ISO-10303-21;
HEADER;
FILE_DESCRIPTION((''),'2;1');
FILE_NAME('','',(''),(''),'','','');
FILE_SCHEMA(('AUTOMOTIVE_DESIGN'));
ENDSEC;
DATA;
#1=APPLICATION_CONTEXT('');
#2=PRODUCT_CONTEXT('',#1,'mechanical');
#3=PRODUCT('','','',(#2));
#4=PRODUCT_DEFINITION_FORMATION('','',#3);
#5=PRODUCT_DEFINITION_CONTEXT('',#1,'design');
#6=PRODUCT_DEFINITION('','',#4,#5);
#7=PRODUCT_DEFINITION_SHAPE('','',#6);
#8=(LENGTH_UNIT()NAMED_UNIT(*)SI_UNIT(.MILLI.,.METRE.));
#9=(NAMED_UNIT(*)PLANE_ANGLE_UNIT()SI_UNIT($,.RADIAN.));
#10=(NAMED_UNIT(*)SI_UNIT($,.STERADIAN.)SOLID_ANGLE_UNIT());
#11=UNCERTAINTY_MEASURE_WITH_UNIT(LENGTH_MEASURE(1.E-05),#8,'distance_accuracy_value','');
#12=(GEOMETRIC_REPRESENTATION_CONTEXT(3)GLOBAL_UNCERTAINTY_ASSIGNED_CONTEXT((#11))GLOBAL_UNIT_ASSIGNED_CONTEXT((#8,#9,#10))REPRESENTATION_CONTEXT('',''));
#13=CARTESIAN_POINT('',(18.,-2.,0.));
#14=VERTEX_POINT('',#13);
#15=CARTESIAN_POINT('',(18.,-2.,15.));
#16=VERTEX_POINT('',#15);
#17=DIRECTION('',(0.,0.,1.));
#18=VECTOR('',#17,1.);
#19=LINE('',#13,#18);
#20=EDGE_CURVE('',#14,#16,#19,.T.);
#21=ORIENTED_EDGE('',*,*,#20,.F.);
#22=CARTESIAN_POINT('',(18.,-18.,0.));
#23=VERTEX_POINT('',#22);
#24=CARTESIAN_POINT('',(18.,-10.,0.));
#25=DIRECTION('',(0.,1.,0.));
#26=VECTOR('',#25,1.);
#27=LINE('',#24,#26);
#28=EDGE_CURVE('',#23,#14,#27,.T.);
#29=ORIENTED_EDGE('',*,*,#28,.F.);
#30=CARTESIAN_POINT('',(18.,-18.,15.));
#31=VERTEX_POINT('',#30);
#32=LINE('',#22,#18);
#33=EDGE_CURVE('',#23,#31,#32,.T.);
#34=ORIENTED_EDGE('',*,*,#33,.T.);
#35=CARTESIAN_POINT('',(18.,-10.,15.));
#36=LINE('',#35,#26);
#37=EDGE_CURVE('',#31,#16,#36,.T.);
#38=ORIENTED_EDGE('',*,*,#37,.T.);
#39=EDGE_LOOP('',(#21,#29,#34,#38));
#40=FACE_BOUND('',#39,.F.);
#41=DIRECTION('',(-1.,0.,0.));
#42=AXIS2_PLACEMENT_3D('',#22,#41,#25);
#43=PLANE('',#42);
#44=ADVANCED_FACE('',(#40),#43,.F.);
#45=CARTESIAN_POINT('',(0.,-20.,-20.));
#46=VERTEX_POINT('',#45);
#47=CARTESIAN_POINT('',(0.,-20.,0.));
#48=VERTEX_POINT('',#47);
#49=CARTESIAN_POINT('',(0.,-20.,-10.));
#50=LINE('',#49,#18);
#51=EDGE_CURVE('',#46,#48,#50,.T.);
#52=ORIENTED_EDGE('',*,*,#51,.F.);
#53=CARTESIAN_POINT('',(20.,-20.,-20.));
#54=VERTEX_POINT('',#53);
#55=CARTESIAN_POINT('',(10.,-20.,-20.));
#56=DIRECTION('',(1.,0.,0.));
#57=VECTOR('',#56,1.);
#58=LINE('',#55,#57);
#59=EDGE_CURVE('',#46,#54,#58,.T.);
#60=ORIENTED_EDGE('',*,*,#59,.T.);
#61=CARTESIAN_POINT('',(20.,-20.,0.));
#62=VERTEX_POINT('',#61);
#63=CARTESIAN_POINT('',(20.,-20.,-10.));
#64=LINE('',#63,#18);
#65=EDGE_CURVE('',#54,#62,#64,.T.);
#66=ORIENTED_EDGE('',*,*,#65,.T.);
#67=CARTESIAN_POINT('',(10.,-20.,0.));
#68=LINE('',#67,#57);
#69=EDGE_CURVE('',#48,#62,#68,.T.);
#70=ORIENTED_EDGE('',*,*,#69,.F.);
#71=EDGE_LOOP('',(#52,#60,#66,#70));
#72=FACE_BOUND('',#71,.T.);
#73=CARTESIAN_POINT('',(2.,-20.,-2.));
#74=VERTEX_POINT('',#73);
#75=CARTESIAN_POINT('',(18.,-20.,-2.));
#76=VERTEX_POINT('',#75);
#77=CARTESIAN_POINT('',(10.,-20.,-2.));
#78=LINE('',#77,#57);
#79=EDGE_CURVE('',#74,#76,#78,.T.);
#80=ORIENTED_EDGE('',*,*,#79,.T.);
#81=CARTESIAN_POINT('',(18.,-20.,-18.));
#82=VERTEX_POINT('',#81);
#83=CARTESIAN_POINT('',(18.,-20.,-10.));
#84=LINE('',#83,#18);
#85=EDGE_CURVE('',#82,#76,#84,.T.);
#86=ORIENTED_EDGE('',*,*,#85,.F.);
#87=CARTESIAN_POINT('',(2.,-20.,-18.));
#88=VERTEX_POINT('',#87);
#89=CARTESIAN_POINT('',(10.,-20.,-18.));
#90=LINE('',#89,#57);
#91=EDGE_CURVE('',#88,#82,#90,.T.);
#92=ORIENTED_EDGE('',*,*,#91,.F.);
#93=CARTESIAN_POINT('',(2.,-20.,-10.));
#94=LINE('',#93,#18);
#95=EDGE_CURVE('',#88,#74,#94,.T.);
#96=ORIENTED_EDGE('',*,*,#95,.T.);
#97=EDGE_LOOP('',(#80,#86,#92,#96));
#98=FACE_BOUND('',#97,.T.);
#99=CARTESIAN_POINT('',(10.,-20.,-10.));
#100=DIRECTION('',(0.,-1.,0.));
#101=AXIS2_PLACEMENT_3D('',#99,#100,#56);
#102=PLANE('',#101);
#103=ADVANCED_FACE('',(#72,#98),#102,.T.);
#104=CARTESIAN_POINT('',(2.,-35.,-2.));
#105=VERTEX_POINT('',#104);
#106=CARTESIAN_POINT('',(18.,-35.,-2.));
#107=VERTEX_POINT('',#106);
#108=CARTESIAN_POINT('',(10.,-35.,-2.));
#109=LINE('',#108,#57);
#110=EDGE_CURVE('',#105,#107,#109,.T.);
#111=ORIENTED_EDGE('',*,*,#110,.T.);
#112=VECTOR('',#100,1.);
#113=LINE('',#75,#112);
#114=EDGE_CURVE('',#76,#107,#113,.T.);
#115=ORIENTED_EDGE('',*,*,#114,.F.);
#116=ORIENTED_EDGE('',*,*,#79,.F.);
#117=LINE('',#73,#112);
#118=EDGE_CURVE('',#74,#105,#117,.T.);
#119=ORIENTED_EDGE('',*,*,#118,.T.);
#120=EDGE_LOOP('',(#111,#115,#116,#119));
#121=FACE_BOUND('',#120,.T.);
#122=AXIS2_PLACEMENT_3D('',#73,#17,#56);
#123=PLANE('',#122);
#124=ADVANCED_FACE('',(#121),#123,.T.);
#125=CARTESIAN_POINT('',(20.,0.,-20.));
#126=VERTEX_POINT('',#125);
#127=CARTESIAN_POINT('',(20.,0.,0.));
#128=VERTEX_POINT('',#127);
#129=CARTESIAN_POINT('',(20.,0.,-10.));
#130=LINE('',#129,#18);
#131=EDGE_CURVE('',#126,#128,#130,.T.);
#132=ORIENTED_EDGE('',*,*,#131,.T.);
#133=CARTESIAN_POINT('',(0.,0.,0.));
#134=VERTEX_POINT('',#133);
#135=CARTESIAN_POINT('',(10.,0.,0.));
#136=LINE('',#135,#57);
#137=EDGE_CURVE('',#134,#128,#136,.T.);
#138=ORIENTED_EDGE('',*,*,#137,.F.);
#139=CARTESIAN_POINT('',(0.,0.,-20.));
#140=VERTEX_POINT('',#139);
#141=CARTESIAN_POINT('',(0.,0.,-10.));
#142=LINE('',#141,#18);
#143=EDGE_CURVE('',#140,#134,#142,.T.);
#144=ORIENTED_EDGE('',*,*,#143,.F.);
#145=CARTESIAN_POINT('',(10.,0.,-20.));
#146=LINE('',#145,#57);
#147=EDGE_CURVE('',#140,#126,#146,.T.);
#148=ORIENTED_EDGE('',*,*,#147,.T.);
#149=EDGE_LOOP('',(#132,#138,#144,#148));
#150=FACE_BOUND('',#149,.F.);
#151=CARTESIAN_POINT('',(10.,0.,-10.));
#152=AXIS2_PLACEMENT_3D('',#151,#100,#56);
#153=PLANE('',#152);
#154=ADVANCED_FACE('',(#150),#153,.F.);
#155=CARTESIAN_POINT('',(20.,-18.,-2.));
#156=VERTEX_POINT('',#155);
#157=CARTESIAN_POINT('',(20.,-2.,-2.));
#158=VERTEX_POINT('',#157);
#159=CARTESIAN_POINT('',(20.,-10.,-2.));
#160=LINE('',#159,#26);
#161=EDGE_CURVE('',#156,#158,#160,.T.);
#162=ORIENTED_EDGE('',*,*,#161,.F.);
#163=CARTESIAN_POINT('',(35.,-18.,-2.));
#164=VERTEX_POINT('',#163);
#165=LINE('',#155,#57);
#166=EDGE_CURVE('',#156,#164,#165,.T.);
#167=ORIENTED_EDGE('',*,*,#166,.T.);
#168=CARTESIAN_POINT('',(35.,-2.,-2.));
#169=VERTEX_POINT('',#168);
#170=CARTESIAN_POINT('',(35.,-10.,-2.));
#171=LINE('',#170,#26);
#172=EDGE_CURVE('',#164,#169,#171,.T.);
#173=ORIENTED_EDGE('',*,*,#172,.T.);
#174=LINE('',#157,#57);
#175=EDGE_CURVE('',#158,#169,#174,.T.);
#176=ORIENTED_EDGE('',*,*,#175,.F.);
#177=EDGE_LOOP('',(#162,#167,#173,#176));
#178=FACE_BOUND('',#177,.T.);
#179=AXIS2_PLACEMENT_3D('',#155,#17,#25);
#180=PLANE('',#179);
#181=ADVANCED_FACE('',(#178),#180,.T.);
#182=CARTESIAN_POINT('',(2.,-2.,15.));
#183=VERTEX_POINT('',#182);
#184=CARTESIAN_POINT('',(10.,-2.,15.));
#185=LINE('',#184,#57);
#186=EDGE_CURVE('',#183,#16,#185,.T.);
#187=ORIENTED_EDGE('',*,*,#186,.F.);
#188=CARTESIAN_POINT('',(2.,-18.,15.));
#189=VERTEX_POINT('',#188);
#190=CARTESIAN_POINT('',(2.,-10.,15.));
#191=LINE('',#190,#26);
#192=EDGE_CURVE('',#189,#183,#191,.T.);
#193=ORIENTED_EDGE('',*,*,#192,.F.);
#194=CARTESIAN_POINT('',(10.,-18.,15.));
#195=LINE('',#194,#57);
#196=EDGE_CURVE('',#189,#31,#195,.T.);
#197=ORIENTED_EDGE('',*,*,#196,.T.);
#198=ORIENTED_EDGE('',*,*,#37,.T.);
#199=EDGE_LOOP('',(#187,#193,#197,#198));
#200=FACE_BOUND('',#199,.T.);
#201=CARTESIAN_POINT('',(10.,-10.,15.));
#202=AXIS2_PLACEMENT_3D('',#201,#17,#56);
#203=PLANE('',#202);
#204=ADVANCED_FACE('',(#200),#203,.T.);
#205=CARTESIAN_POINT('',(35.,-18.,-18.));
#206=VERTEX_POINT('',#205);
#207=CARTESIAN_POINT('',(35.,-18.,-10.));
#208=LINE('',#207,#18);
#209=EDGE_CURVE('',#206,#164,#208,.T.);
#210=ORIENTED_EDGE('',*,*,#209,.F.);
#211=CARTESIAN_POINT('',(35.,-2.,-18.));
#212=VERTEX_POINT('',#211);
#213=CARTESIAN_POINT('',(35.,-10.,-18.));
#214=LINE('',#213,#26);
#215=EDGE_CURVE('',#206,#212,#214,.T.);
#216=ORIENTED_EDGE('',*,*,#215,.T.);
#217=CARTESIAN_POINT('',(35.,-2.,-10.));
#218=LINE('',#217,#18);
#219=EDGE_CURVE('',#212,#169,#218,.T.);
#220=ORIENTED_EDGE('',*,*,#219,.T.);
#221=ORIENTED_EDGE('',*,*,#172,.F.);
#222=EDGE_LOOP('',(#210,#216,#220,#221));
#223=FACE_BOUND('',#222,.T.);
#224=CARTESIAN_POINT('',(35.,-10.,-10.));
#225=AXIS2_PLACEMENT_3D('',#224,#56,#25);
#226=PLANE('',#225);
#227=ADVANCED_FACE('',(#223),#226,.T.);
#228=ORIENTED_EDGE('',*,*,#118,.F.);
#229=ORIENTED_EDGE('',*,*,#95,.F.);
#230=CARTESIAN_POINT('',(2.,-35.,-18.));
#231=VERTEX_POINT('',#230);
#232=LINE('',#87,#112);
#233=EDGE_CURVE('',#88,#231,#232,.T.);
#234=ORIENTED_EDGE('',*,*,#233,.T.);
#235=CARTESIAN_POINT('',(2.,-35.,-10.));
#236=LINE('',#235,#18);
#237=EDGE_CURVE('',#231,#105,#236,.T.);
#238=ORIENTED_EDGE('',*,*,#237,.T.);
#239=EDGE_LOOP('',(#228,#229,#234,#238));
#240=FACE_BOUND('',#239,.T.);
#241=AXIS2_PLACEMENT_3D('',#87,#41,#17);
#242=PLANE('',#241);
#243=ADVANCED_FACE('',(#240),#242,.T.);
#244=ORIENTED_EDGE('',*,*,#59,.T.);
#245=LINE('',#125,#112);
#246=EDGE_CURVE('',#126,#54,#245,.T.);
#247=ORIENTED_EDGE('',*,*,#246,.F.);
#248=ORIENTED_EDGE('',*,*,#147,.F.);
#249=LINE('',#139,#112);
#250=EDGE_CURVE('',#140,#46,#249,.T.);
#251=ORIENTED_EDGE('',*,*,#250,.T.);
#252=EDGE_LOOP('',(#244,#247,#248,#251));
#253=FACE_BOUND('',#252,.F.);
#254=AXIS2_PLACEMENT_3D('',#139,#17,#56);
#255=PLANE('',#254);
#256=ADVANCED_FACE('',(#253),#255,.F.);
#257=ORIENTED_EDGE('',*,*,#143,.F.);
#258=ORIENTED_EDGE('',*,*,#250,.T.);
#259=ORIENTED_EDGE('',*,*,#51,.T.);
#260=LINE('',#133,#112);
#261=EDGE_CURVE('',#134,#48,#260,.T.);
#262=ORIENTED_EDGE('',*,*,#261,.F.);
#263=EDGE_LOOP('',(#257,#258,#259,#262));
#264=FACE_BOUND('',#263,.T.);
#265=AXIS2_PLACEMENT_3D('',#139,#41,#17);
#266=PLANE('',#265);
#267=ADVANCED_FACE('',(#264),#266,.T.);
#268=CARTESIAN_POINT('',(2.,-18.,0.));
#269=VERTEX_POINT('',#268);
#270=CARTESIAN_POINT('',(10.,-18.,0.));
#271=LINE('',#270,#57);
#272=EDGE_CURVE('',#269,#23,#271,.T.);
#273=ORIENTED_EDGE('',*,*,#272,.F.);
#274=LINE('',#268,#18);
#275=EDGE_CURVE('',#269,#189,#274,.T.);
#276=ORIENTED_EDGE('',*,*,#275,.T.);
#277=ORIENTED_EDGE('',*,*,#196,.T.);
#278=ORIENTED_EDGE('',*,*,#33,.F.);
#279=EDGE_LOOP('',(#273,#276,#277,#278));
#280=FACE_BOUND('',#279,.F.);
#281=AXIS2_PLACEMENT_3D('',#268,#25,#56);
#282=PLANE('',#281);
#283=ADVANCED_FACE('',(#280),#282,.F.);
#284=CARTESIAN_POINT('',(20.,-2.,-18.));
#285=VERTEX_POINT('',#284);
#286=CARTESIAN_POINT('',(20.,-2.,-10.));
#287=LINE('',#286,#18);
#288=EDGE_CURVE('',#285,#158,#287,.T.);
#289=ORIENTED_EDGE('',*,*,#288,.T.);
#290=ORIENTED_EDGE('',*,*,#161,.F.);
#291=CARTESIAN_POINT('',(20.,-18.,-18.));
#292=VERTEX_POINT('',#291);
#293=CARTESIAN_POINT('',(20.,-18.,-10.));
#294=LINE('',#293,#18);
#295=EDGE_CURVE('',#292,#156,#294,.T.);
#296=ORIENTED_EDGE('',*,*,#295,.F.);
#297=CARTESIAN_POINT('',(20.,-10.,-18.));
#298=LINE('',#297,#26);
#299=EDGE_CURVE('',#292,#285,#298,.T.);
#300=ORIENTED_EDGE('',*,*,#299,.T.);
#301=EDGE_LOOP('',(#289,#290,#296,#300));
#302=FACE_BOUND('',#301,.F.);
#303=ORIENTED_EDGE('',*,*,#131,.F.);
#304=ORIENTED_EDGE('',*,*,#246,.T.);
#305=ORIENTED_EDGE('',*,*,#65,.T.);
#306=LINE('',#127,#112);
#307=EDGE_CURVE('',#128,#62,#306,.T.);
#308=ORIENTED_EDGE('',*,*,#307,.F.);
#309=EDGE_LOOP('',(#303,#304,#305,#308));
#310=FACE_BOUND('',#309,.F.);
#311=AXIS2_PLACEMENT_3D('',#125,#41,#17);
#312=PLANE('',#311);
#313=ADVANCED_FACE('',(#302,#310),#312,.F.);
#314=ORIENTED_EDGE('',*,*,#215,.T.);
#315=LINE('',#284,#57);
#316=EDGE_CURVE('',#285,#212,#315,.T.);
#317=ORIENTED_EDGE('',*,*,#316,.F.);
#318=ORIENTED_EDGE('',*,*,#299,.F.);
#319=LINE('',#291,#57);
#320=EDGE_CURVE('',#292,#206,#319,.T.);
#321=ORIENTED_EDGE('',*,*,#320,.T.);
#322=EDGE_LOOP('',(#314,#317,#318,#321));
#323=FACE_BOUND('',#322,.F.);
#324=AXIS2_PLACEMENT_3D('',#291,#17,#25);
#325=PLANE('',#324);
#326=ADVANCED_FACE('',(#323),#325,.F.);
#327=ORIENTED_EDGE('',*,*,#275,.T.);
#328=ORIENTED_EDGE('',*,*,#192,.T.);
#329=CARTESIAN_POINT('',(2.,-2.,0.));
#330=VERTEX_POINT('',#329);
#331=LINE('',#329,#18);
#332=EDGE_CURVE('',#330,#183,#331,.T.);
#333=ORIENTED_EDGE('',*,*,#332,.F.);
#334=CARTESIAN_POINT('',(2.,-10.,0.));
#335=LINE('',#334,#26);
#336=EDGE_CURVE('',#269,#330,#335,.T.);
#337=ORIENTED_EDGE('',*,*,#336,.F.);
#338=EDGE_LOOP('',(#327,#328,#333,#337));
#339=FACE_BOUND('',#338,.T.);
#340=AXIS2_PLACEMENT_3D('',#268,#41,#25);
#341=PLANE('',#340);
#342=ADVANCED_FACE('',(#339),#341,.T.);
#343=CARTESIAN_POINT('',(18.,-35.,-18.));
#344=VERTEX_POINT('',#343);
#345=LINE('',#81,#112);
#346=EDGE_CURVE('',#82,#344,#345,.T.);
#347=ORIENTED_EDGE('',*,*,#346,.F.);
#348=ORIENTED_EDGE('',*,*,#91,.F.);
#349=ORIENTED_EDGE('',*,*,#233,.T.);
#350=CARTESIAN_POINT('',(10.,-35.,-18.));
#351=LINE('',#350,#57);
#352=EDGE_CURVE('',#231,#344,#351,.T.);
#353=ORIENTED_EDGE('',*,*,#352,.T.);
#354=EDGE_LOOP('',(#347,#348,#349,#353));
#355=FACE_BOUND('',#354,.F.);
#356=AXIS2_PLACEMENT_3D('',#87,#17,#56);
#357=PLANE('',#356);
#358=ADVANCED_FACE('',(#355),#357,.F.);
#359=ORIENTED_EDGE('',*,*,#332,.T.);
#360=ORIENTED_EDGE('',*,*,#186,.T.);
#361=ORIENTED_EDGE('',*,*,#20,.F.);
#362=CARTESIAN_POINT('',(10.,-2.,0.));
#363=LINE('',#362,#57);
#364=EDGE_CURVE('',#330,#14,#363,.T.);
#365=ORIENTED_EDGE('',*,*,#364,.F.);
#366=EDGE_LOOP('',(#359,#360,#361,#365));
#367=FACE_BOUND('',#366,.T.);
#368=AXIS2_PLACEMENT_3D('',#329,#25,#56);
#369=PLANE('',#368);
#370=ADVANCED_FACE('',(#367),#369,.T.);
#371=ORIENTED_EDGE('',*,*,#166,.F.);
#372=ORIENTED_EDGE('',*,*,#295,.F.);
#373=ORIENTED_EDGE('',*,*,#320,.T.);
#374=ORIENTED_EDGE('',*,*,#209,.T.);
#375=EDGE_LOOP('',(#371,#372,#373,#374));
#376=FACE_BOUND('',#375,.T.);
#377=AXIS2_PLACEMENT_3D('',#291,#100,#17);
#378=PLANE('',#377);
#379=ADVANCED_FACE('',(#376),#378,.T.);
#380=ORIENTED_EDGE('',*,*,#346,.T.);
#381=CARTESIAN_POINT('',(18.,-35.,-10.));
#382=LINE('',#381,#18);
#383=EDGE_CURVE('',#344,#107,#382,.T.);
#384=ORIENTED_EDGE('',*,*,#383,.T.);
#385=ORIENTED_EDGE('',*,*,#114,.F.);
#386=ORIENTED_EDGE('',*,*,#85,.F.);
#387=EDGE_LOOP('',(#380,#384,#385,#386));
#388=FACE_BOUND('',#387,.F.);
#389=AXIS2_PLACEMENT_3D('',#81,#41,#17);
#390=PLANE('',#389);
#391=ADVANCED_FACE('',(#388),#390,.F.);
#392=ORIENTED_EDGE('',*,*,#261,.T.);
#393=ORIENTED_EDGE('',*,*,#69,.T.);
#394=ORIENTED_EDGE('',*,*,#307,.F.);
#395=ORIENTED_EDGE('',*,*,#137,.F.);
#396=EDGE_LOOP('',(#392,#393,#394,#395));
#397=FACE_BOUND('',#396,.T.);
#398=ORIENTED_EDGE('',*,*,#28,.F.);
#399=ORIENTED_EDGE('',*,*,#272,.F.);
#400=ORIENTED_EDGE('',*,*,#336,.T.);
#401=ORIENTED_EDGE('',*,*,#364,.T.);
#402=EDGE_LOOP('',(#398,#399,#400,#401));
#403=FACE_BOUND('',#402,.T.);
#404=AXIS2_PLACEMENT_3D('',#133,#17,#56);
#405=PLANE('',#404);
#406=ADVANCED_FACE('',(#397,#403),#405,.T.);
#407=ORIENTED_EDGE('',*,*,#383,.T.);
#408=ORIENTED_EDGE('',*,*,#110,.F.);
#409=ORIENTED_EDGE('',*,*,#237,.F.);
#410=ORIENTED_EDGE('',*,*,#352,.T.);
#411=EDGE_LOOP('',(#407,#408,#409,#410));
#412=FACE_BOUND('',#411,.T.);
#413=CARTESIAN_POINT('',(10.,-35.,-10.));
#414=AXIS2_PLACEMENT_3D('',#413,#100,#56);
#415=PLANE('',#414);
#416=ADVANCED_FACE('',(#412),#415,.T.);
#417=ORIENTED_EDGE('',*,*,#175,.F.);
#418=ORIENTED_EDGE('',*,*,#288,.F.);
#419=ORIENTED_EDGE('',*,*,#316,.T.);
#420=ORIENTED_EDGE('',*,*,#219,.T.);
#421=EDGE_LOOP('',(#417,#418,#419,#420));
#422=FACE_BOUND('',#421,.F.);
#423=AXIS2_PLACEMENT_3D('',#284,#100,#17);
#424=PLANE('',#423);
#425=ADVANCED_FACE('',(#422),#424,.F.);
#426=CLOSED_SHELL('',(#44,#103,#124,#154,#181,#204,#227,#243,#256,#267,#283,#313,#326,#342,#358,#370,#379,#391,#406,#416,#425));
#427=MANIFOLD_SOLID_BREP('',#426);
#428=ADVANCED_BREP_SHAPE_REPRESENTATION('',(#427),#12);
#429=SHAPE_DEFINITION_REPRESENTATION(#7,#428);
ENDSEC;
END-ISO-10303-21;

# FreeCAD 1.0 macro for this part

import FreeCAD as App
import Part
import Sketcher

V = App.Vector


def add_polygon(sketch, points):
    """Adds a closed chain of lines whose ends are joined by coincident constraints."""
    first, n = sketch.GeometryCount, len(points)
    for a, b in zip(points, points[1:] + points[:1]):
        sketch.addGeometry(Part.LineSegment(App.Vector(*a, 0), App.Vector(*b, 0)), False)
    for i in range(n):
        sketch.addConstraint(Sketcher.Constraint("Coincident", first + i, 2, first + (i + 1) % n, 1))

doc = App.newDocument("Part")
body = doc.addObject("PartDesign::Body", "Body")

sketch1 = body.newObject("Sketcher::SketchObject", "Sketch")
sketch1.AttachmentSupport = (doc.getObject("XZ_Plane"), [""])
sketch1.MapMode = "FlatFace"
add_polygon(sketch1, [(0, 0), (0, -20), (20, -20), (20, 0)])
sketch1.addConstraint([
    Sketcher.Constraint("Vertical", 0),
    Sketcher.Constraint("Horizontal", 1),
    Sketcher.Constraint("Vertical", 2),
    Sketcher.Constraint("Horizontal", 3),
    Sketcher.Constraint("Coincident", 3, 2, -1, 1),
    Sketcher.Constraint("Equal", 3, 0),
    Sketcher.Constraint("DistanceX", 1, 1, 1, 2, 20.0),
])
pad1 = body.newObject("PartDesign::Pad", "Pad")
pad1.Profile = sketch1
pad1.Length = 20

sketch2 = body.newObject("Sketcher::SketchObject", "Sketch001")
sketch2.AttachmentSupport = (doc.getObject("XZ_Plane"), [""])
sketch2.MapMode = "FlatFace"
sketch2.AttachmentOffset = App.Placement(V(0, 0, 20), App.Rotation())
add_polygon(sketch2, [(2, -2), (2, -18), (18, -18), (18, -2)])
sketch2.addConstraint([
    Sketcher.Constraint("Vertical", 0),
    Sketcher.Constraint("Horizontal", 1),
    Sketcher.Constraint("Vertical", 2),
    Sketcher.Constraint("Horizontal", 3),
    Sketcher.Constraint("Equal", 3, 0),
    Sketcher.Constraint("DistanceX", 1, 1, 1, 2, 16.0),
    Sketcher.Constraint("DistanceX", -1, 1, 0, 2, 2.0),
    Sketcher.Constraint("DistanceY", 0, 2, -1, 1, 18.0),
])
pad2 = body.newObject("PartDesign::Pad", "Pad001")
pad2.Profile = sketch2
pad2.Length = 15

sketch3 = body.newObject("Sketcher::SketchObject", "Sketch002")
sketch3.AttachmentSupport = (doc.getObject("YZ_Plane"), [""])
sketch3.MapMode = "FlatFace"
sketch3.AttachmentOffset = App.Placement(V(0, 0, 20), App.Rotation())
add_polygon(sketch3, [(-18, -2), (-18, -18), (-2, -18), (-2, -2)])
sketch3.addConstraint([
    Sketcher.Constraint("Vertical", 0),
    Sketcher.Constraint("Horizontal", 1),
    Sketcher.Constraint("Vertical", 2),
    Sketcher.Constraint("Horizontal", 3),
    Sketcher.Constraint("Equal", 3, 0),
    Sketcher.Constraint("DistanceX", 1, 1, 1, 2, 16.0),
    Sketcher.Constraint("DistanceX", 0, 2, -1, 1, 18.0),
    Sketcher.Constraint("DistanceY", 0, 2, -1, 1, 18.0),
])
pad3 = body.newObject("PartDesign::Pad", "Pad002")
pad3.Profile = sketch3
pad3.Length = 15

sketch4 = body.newObject("Sketcher::SketchObject", "Sketch003")
sketch4.AttachmentSupport = (doc.getObject("XY_Plane"), [""])
sketch4.MapMode = "FlatFace"
add_polygon(sketch4, [(2, -2), (2, -18), (18, -18), (18, -2)])
sketch4.addConstraint([
    Sketcher.Constraint("Vertical", 0),
    Sketcher.Constraint("Horizontal", 1),
    Sketcher.Constraint("Vertical", 2),
    Sketcher.Constraint("Horizontal", 3),
    Sketcher.Constraint("Equal", 3, 0),
    Sketcher.Constraint("DistanceX", 1, 1, 1, 2, 16.0),
    Sketcher.Constraint("DistanceX", -1, 1, 0, 2, 2.0),
    Sketcher.Constraint("DistanceY", 0, 2, -1, 1, 18.0),
])
pad4 = body.newObject("PartDesign::Pad", "Pad003")
pad4.Profile = sketch4
pad4.Length = 15

doc.recompute()
